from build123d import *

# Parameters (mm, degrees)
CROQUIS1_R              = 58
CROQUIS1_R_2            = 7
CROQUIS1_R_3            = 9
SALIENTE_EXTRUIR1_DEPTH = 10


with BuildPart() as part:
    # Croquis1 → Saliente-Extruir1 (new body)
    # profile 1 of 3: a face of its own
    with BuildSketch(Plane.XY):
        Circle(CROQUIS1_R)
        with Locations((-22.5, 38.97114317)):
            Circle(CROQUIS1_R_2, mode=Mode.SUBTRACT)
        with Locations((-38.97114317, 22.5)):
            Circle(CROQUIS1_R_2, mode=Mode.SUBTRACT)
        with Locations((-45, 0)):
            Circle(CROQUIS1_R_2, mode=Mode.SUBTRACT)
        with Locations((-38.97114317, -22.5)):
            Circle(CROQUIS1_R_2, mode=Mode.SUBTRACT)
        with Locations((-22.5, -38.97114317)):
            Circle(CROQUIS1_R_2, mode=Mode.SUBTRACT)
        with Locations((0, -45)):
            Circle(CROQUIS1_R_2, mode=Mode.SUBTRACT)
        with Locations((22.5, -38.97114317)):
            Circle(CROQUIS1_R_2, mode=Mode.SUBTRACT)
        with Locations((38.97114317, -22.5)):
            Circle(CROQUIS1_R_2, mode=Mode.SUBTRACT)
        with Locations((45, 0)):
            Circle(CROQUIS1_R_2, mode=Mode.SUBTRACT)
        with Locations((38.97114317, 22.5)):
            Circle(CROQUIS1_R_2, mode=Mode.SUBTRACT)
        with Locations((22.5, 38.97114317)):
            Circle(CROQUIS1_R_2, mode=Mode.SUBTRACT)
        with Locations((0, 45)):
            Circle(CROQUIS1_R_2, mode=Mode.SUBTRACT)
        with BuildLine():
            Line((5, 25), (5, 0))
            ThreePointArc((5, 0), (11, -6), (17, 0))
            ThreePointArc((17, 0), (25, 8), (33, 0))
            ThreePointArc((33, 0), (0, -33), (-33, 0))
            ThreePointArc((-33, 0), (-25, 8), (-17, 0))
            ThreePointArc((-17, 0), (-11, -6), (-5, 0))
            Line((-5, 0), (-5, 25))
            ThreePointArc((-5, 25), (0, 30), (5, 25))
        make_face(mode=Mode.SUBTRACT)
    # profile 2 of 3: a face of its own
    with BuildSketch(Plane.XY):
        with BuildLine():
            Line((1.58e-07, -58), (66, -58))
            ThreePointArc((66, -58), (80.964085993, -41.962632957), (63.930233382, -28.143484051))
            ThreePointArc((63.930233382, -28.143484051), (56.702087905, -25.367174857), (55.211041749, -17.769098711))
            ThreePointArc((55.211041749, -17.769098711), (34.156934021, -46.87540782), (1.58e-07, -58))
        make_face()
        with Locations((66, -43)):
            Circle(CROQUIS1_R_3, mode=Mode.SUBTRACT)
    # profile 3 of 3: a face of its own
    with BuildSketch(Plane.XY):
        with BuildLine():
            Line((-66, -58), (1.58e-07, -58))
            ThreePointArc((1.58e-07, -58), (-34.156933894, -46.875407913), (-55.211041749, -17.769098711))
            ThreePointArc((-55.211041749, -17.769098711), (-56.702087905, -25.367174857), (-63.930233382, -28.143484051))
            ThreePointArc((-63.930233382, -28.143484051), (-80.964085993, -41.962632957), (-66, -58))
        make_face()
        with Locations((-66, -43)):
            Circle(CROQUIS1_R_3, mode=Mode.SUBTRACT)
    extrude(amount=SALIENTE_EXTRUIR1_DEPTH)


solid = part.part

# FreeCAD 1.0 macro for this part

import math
import FreeCAD as App
import Part
import Sketcher

V = App.Vector
Q = App.Units.Quantity

doc = App.newDocument("Part")
body = doc.addObject("PartDesign::Body", "Body")

# Sketch on XY plane
sketch1 = doc.addObject("Sketcher::SketchObject", "Sketch")
body.addObject(sketch1)
sketch1.AttachmentSupport = (doc.XY_Plane, [""])
sketch1.MapMode = "FlatFace"
sketch1.addGeometry(Part.ArcOfCircle(Part.Circle(V(-63, -20, 0), V(0, 0, 1), 8), math.radians(-98), math.radians(18)), False)
sketch1.addGeometry(Part.ArcOfCircle(Part.Circle(V(-66, -43, 0), V(0, 0, 1), 15), math.radians(82), math.radians(270)), False)
sketch1.addGeometry(Part.LineSegment(V(-66, -58, 0), V(66, -58, 0)), False)
sketch1.addGeometry(Part.ArcOfCircle(Part.Circle(V(66, -43, 0), V(0, 0, 1), 15), math.radians(-90), math.radians(98)), False)
sketch1.addGeometry(Part.ArcOfCircle(Part.Circle(V(63, -20, 0), V(0, 0, 1), 8), math.radians(162), math.radians(278)), False)
sketch1.addGeometry(Part.ArcOfCircle(Part.Circle(V(0, 0, 0), V(0, 0, 1), 58), math.radians(-18), math.radians(198)), False)
sketch1.addGeometry(Part.Circle(V(-22, -39, 0), V(0, 0, 1), 7), False)
sketch1.addGeometry(Part.Circle(V(-39, -22, 0), V(0, 0, 1), 7), False)
sketch1.addGeometry(Part.Circle(V(0, -45, 0), V(0, 0, 1), 7), False)
sketch1.addGeometry(Part.Circle(V(22, -39, 0), V(0, 0, 1), 7), False)
sketch1.addGeometry(Part.ArcOfCircle(Part.Circle(V(0, 25, 0), V(0, 0, 1), 5), math.radians(0), math.radians(180)), False)
sketch1.addGeometry(Part.LineSegment(V(5, 25, 0), V(5, 0, 0)), False)
sketch1.addGeometry(Part.ArcOfCircle(Part.Circle(V(11, 0, 0), V(0, 0, 1), 6), math.radians(180), math.radians(360)), False)
sketch1.addGeometry(Part.ArcOfCircle(Part.Circle(V(25, 0, 0), V(0, 0, 1), 8), math.radians(0), math.radians(180)), False)
sketch1.addGeometry(Part.ArcOfCircle(Part.Circle(V(0, 0, 0), V(0, 0, 1), 33), math.radians(180), math.radians(360)), False)
sketch1.addGeometry(Part.ArcOfCircle(Part.Circle(V(-25, 0, 0), V(0, 0, 1), 8), math.radians(0), math.radians(180)), False)
sketch1.addGeometry(Part.ArcOfCircle(Part.Circle(V(-11, 0, 0), V(0, 0, 1), 6), math.radians(180), math.radians(360)), False)
sketch1.addGeometry(Part.LineSegment(V(-5, 0, 0), V(-5, 25, 0)), False)
sketch1.addGeometry(Part.Circle(V(39, -22, 0), V(0, 0, 1), 7), False)
sketch1.addGeometry(Part.Circle(V(-45, 0, 0), V(0, 0, 1), 7), False)
sketch1.addGeometry(Part.Circle(V(-39, 22, 0), V(0, 0, 1), 7), False)
sketch1.addGeometry(Part.Circle(V(-22, 39, 0), V(0, 0, 1), 7), False)
sketch1.addGeometry(Part.Circle(V(45, 0, 0), V(0, 0, 1), 7), False)
sketch1.addGeometry(Part.Circle(V(39, 22, 0), V(0, 0, 1), 7), False)
sketch1.addGeometry(Part.Circle(V(22, 39, 0), V(0, 0, 1), 7), False)
sketch1.addGeometry(Part.Circle(V(0, 45, 0), V(0, 0, 1), 7), False)
sketch1.addGeometry(Part.Circle(V(-66, -43, 0), V(0, 0, 1), 9), False)
sketch1.addGeometry(Part.Circle(V(66, -43, 0), V(0, 0, 1), 9), False)
sketch1.addConstraint(Sketcher.Constraint("Tangent", 0, 1, 1, 1))
sketch1.addConstraint(Sketcher.Constraint("Tangent", 1, 2, 2, 1))
sketch1.addConstraint(Sketcher.Constraint("Tangent", 2, 2, 3, 1))
sketch1.addConstraint(Sketcher.Constraint("Tangent", 3, 2, 4, 2))
sketch1.addConstraint(Sketcher.Constraint("Tangent", 4, 1, 5, 1))
sketch1.addConstraint(Sketcher.Constraint("Tangent", 5, 2, 0, 2))
sketch1.addConstraint(Sketcher.Constraint("Tangent", 10, 1, 11, 1))
sketch1.addConstraint(Sketcher.Constraint("Tangent", 11, 2, 12, 1))
sketch1.addConstraint(Sketcher.Constraint("Tangent", 12, 2, 13, 2))
sketch1.addConstraint(Sketcher.Constraint("Tangent", 13, 1, 14, 2))
sketch1.addConstraint(Sketcher.Constraint("Tangent", 14, 1, 15, 2))
sketch1.addConstraint(Sketcher.Constraint("Tangent", 15, 1, 16, 1))
sketch1.addConstraint(Sketcher.Constraint("Tangent", 16, 2, 17, 1))
sketch1.addConstraint(Sketcher.Constraint("Tangent", 17, 2, 10, 2))
sketch1.addConstraint(Sketcher.Constraint("Horizontal", 2))
sketch1.addConstraint(Sketcher.Constraint("Vertical", 11))
sketch1.addConstraint(Sketcher.Constraint("Vertical", 17))
sketch1.addConstraint(Sketcher.Constraint("Coincident", 5, 3, -1, 1))
sketch1.addConstraint(Sketcher.Constraint("Coincident", 14, 3, -1, 1))
sketch1.addConstraint(Sketcher.Constraint("Coincident", 26, 3, 1, 3))
sketch1.addConstraint(Sketcher.Constraint("Coincident", 27, 3, 3, 3))
sketch1.addConstraint(Sketcher.Constraint("Equal", 1, 3))
sketch1.addConstraint(Sketcher.Constraint("Equal", 0, 4))
sketch1.addConstraint(Sketcher.Constraint("Equal", 6, 7))
sketch1.addConstraint(Sketcher.Constraint("Equal", 7, 8))
sketch1.addConstraint(Sketcher.Constraint("Equal", 8, 9))
sketch1.addConstraint(Sketcher.Constraint("Equal", 4, 13))
sketch1.addConstraint(Sketcher.Constraint("Equal", 13, 15))
sketch1.addConstraint(Sketcher.Constraint("Equal", 12, 16))
sketch1.addConstraint(Sketcher.Constraint("Equal", 9, 18))
sketch1.addConstraint(Sketcher.Constraint("Equal", 18, 19))
sketch1.addConstraint(Sketcher.Constraint("Equal", 19, 20))
sketch1.addConstraint(Sketcher.Constraint("Equal", 20, 21))
sketch1.addConstraint(Sketcher.Constraint("Equal", 21, 22))
sketch1.addConstraint(Sketcher.Constraint("Equal", 22, 23))
sketch1.addConstraint(Sketcher.Constraint("Equal", 23, 24))
sketch1.addConstraint(Sketcher.Constraint("Equal", 24, 25))
sketch1.addConstraint(Sketcher.Constraint("Equal", 26, 27))
sketch1.addConstraint(Sketcher.Constraint("Symmetric", 18, 3, 20, 3, -1, 1))
sketch1.addConstraint(Sketcher.Constraint("Symmetric", 9, 3, 21, 3, -1, 1))
sketch1.addConstraint(Sketcher.Constraint("Symmetric", 19, 3, 22, 3, -1, 1))
sketch1.addConstraint(Sketcher.Constraint("Symmetric", 7, 3, 23, 3, -1, 1))
sketch1.addConstraint(Sketcher.Constraint("Symmetric", 6, 3, 24, 3, -1, 1))
sketch1.addConstraint(Sketcher.Constraint("Symmetric", 8, 3, 25, 3, -1, 1))
sketch1.addConstraint(Sketcher.Constraint("Symmetric", 6, 3, 9, 3, -2))
sketch1.addConstraint(Sketcher.Constraint("Symmetric", 7, 3, 18, 3, -2))
sketch1.addConstraint(Sketcher.Constraint("PointOnObject", 8, 3, -2))
sketch1.addConstraint(Sketcher.Constraint("PointOnObject", 12, 3, -1))
sketch1.addConstraint(Sketcher.Constraint("PointOnObject", 13, 3, -1))
sketch1.addConstraint(Sketcher.Constraint("PointOnObject", 15, 3, -1))
sketch1.addConstraint(Sketcher.Constraint("PointOnObject", 16, 3, -1))
sketch1.addConstraint(Sketcher.Constraint("PointOnObject", 19, 3, -1))
sketch1.addConstraint(Sketcher.Constraint("Horizontal", 0, 3, 4, 3))
sketch1.addConstraint(Sketcher.Constraint("Diameter", 6, Q("14 mm")))
sketch1.addConstraint(Sketcher.Constraint("Diameter", 26, Q("18 mm")))
sketch1.addConstraint(Sketcher.Constraint("Radius", 0, Q("8 mm")))
sketch1.addConstraint(Sketcher.Constraint("Radius", 1, Q("15 mm")))
sketch1.addConstraint(Sketcher.Constraint("Radius", 5, Q("58 mm")))
sketch1.addConstraint(Sketcher.Constraint("Radius", 10, Q("5 mm")))
sketch1.addConstraint(Sketcher.Constraint("Radius", 12, Q("6 mm")))
sketch1.addConstraint(Sketcher.Constraint("DistanceX", 2, 1, 2, 2, Q("132 mm")))
sketch1.addConstraint(Sketcher.Constraint("DistanceY", 11, 2, 11, 1, Q("25 mm")))
sketch1.addConstraint(Sketcher.Constraint("DistanceY", 1, 3, -1, 1, Q("43 mm")))
sketch1.addConstraint(Sketcher.Constraint("DistanceY", 8, 3, -1, 1, Q("45 mm")))
sketch1.addConstraint(Sketcher.Constraint("DistanceX", 19, 3, -1, 1, Q("45 mm")))
sketch1.addConstraint(Sketcher.Constraint("DistanceX", 6, 3, 9, 3, Q("45 mm")))
sketch1.addConstraint(Sketcher.Constraint("DistanceY", 7, 3, -1, 1, Q("22.5 mm")))
sketch1.addConstraint(Sketcher.Constraint("DistanceX", 7, 3, 4, 3, Q("101.797501 mm")))
sketch1.addConstraint(Sketcher.Constraint("DistanceY", 6, 3, -1, 1, Q("38.971143 mm")))
pad1 = doc.addObject("PartDesign::Pad", "Pad")
body.addObject(pad1)
pad1.Profile = sketch1
pad1.Length = 10

doc.recompute()
